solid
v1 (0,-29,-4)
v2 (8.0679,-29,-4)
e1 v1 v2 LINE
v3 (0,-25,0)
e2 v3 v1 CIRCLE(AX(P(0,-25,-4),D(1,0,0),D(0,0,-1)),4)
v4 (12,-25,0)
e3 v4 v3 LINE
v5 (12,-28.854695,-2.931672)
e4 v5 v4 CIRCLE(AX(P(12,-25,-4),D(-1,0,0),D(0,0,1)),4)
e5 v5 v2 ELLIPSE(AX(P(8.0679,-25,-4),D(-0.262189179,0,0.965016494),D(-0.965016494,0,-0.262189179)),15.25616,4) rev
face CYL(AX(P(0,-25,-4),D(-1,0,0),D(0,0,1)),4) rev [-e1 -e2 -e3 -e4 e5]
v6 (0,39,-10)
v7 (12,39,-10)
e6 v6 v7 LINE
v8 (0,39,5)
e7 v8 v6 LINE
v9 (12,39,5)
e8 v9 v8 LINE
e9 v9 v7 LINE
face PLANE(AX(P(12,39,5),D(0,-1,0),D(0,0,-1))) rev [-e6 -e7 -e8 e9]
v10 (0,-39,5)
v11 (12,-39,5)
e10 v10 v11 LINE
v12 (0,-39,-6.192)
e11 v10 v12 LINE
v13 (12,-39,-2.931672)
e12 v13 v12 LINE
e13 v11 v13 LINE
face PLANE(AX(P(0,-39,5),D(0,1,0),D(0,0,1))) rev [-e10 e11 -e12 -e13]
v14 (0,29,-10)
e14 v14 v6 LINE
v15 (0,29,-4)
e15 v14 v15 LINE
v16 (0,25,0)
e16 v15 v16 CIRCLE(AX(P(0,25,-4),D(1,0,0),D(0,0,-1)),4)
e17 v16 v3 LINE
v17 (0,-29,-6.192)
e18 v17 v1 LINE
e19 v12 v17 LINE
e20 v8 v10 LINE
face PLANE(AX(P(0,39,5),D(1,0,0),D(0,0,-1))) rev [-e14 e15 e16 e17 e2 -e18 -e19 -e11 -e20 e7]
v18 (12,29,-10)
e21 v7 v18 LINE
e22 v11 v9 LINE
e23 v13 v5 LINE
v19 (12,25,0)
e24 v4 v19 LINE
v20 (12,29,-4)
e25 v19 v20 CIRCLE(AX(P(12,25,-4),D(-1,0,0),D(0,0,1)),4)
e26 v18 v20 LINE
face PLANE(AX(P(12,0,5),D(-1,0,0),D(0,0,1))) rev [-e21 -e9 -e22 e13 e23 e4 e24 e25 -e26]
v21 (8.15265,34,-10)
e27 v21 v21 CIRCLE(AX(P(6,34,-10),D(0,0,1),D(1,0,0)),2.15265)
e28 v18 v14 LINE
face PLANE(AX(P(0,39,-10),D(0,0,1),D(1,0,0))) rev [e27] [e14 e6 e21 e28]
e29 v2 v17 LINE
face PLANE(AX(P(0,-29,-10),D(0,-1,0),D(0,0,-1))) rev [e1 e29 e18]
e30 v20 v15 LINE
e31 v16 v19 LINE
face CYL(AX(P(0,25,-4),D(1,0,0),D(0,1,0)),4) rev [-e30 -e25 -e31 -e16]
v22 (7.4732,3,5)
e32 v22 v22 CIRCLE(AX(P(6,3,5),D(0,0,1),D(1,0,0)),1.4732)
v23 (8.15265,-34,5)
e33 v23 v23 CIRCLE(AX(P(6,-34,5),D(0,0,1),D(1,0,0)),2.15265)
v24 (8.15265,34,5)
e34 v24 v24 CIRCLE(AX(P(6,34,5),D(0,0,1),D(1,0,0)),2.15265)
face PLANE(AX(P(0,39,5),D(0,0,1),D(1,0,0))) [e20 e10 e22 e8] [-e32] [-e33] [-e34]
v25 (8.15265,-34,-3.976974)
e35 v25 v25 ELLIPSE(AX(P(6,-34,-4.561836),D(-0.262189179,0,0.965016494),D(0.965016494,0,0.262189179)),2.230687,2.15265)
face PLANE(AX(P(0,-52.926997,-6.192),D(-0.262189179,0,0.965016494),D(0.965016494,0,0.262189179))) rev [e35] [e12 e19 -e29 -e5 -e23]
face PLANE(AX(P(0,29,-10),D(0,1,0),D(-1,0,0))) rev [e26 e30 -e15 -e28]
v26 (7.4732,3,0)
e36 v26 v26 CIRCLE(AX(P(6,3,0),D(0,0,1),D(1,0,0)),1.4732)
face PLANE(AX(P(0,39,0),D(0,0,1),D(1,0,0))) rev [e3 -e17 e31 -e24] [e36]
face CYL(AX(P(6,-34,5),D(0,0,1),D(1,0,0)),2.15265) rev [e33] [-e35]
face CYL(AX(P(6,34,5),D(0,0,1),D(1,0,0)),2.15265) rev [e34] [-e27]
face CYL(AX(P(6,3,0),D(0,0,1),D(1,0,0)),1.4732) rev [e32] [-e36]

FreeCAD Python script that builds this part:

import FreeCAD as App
import Part
import Sketcher

V = App.Vector
Q = App.Units.Quantity


def edges_at(feature, points):
    """Names of the edges that pass closest to the given points."""
    edges = feature.Shape.Edges
    near = lambda p: min(range(len(edges)), key=lambda i: edges[i].distToShape(Part.Vertex(*p))[0])
    return sorted({f"Edge{near(p) + 1}" for p in points})


def add_polygon(sketch, points):
    """Adds a closed chain of lines whose ends are joined by coincident constraints."""
    first, n = sketch.GeometryCount, len(points)
    for a, b in zip(points, points[1:] + points[:1]):
        sketch.addGeometry(Part.LineSegment(App.Vector(*a, 0), App.Vector(*b, 0)), False)
    for i in range(n):
        sketch.addConstraint(Sketcher.Constraint("Coincident", first + i, 2, first + (i + 1) % n, 1))

doc = App.newDocument("Part")
body = doc.addObject("PartDesign::Body", "Body")

# Sketch on XY plane
sketch1 = doc.addObject("Sketcher::SketchObject", "Sketch")
body.addObject(sketch1)
sketch1.AttachmentSupport = (doc.XY_Plane, [""])
sketch1.MapMode = "FlatFace"
add_polygon(sketch1, [(0, 39), (0, -39), (12, -39), (12, 39)])  # lines 0-3
sketch1.addConstraint(Sketcher.Constraint("Vertical", 0))
sketch1.addConstraint(Sketcher.Constraint("Horizontal", 1))
sketch1.addConstraint(Sketcher.Constraint("Vertical", 2))
sketch1.addConstraint(Sketcher.Constraint("Horizontal", 3))
sketch1.addConstraint(Sketcher.Constraint("Symmetric", 0, 2, 3, 2, -1, 1))
sketch1.addConstraint(Sketcher.Constraint("DistanceX", 1, 1, 1, 2, Q("12 mm")))
sketch1.addConstraint(Sketcher.Constraint("DistanceY", 0, 2, 0, 1, Q("78 mm")))
pad1 = doc.addObject("PartDesign::Pad", "Pad")
body.addObject(pad1)
pad1.Profile = sketch1
pad1.Length = 5

# Sketch on XY plane
sketch2 = doc.addObject("Sketcher::SketchObject", "Sketch001")
body.addObject(sketch2)
sketch2.AttachmentSupport = (doc.XY_Plane, [""])
sketch2.MapMode = "FlatFace"
sketch2.AttachmentOffset = App.Placement(V(0, 0, 5), App.Rotation())
sketch2.addGeometry(Part.Circle(V(6, 3, 0), V(0, 0, 1), 1.5), False)
sketch2.addConstraint(Sketcher.Constraint("DistanceX", -1, 1, 0, 3, Q("6 mm")))
sketch2.addConstraint(Sketcher.Constraint("DistanceY", -1, 1, 0, 3, Q("3 mm")))
sketch2.addConstraint(Sketcher.Constraint("Diameter", 0, Q("2.9464 mm")))
pocket1 = doc.addObject("PartDesign::Pocket", "Pocket")
body.addObject(pocket1)
pocket1.Profile = sketch2
pocket1.Type = "ThroughAll"

# Sketch on XY plane
sketch3 = doc.addObject("Sketcher::SketchObject", "Sketch002")
body.addObject(sketch3)
sketch3.AttachmentSupport = (doc.XY_Plane, [""])
sketch3.MapMode = "FlatFace"
add_polygon(sketch3, [(12, 39), (12, 29), (0, 29), (0, 39)])  # lines 0-3
add_polygon(sketch3, [(12, -29), (12, -39), (0, -39), (0, -29)])  # lines 4-7
sketch3.addConstraint(Sketcher.Constraint("Vertical", 0))
sketch3.addConstraint(Sketcher.Constraint("Horizontal", 1))
sketch3.addConstraint(Sketcher.Constraint("Vertical", 2))
sketch3.addConstraint(Sketcher.Constraint("Horizontal", 3))
sketch3.addConstraint(Sketcher.Constraint("Vertical", 4))
sketch3.addConstraint(Sketcher.Constraint("Horizontal", 5))
sketch3.addConstraint(Sketcher.Constraint("Vertical", 6))
sketch3.addConstraint(Sketcher.Constraint("Horizontal", 7))
sketch3.addConstraint(Sketcher.Constraint("Symmetric", 2, 2, 5, 2, -1, 1))
sketch3.addConstraint(Sketcher.Constraint("Symmetric", 1, 2, 6, 2, -1))
sketch3.addConstraint(Sketcher.Constraint("Vertical", 3, 2, 4, 2))
sketch3.addConstraint(Sketcher.Constraint("DistanceX", 1, 2, 1, 1, Q("12 mm")))
sketch3.addConstraint(Sketcher.Constraint("DistanceY", 0, 2, 0, 1, Q("10 mm")))
sketch3.addConstraint(Sketcher.Constraint("DistanceY", -1, 1, 0, 2, Q("29 mm")))
pad2 = doc.addObject("PartDesign::Pad", "Pad001")
body.addObject(pad2)
pad2.Profile = sketch3
pad2.Length = 10
pad2.Reversed = True
doc.recompute()

fillet = doc.addObject("PartDesign::Fillet", "Fillet")
body.addObject(fillet)
fillet.Base = (pad2, edges_at(pad2, [(6, -29, 0), (6, 29, 0)]))
fillet.Radius = 4

# Sketch on XZ plane
sketch4 = doc.addObject("Sketcher::SketchObject", "Sketch003")
body.addObject(sketch4)
sketch4.AttachmentSupport = (doc.XZ_Plane, [""])
sketch4.MapMode = "FlatFace"
add_polygon(sketch4, [(0, -10), (0, -6.2), (12, -2.9), (12, -10)])  # lines 0-3
sketch4.addConstraint(Sketcher.Constraint("Vertical", 0))
sketch4.addConstraint(Sketcher.Constraint("Vertical", 2))
sketch4.addConstraint(Sketcher.Constraint("Horizontal", 3))
sketch4.addConstraint(Sketcher.Constraint("PointOnObject", 0, 2, -2))
sketch4.addConstraint(Sketcher.Constraint("DistanceX", 3, 2, 3, 1, Q("12 mm")))
sketch4.addConstraint(Sketcher.Constraint("DistanceY", 2, 2, -1, 1, Q("10 mm")))
sketch4.addConstraint(Sketcher.Constraint("Angle", 1, Q("15.2 deg")))
sketch4.addConstraint(Sketcher.Constraint("DistanceY", 0, 1, 0, 2, Q("3.808 mm")))
pocket2 = doc.addObject("PartDesign::Pocket", "Pocket001")
body.addObject(pocket2)
pocket2.Profile = sketch4
pocket2.Length = 39
pocket2.Reversed = True

# Sketch on XY plane
sketch5 = doc.addObject("Sketcher::SketchObject", "Sketch004")
body.addObject(sketch5)
sketch5.AttachmentSupport = (doc.XY_Plane, [""])
sketch5.MapMode = "FlatFace"
sketch5.AttachmentOffset = App.Placement(V(0, 0, 5), App.Rotation())
sketch5.addGeometry(Part.Circle(V(6, 34, 0), V(0, 0, 1), 2.2), False)
sketch5.addGeometry(Part.Circle(V(6, -34, 0), V(0, 0, 1), 2.2), False)
sketch5.addConstraint(Sketcher.Constraint("Equal", 0, 1))
sketch5.addConstraint(Sketcher.Constraint("Symmetric", 0, 3, 1, 3, -1))
sketch5.addConstraint(Sketcher.Constraint("DistanceX", -1, 1, 0, 3, Q("6 mm")))
sketch5.addConstraint(Sketcher.Constraint("DistanceY", -1, 1, 0, 3, Q("34 mm")))
sketch5.addConstraint(Sketcher.Constraint("Diameter", 0, Q("4.3053 mm")))
doc.recompute()
hole = doc.addObject("PartDesign::Hole", "Hole")
body.addObject(hole)
hole.Profile = sketch5
hole.ThreadType = "None"
hole.Diameter = 4.3053
hole.DepthType = "ThroughAll"

doc.recompute()
